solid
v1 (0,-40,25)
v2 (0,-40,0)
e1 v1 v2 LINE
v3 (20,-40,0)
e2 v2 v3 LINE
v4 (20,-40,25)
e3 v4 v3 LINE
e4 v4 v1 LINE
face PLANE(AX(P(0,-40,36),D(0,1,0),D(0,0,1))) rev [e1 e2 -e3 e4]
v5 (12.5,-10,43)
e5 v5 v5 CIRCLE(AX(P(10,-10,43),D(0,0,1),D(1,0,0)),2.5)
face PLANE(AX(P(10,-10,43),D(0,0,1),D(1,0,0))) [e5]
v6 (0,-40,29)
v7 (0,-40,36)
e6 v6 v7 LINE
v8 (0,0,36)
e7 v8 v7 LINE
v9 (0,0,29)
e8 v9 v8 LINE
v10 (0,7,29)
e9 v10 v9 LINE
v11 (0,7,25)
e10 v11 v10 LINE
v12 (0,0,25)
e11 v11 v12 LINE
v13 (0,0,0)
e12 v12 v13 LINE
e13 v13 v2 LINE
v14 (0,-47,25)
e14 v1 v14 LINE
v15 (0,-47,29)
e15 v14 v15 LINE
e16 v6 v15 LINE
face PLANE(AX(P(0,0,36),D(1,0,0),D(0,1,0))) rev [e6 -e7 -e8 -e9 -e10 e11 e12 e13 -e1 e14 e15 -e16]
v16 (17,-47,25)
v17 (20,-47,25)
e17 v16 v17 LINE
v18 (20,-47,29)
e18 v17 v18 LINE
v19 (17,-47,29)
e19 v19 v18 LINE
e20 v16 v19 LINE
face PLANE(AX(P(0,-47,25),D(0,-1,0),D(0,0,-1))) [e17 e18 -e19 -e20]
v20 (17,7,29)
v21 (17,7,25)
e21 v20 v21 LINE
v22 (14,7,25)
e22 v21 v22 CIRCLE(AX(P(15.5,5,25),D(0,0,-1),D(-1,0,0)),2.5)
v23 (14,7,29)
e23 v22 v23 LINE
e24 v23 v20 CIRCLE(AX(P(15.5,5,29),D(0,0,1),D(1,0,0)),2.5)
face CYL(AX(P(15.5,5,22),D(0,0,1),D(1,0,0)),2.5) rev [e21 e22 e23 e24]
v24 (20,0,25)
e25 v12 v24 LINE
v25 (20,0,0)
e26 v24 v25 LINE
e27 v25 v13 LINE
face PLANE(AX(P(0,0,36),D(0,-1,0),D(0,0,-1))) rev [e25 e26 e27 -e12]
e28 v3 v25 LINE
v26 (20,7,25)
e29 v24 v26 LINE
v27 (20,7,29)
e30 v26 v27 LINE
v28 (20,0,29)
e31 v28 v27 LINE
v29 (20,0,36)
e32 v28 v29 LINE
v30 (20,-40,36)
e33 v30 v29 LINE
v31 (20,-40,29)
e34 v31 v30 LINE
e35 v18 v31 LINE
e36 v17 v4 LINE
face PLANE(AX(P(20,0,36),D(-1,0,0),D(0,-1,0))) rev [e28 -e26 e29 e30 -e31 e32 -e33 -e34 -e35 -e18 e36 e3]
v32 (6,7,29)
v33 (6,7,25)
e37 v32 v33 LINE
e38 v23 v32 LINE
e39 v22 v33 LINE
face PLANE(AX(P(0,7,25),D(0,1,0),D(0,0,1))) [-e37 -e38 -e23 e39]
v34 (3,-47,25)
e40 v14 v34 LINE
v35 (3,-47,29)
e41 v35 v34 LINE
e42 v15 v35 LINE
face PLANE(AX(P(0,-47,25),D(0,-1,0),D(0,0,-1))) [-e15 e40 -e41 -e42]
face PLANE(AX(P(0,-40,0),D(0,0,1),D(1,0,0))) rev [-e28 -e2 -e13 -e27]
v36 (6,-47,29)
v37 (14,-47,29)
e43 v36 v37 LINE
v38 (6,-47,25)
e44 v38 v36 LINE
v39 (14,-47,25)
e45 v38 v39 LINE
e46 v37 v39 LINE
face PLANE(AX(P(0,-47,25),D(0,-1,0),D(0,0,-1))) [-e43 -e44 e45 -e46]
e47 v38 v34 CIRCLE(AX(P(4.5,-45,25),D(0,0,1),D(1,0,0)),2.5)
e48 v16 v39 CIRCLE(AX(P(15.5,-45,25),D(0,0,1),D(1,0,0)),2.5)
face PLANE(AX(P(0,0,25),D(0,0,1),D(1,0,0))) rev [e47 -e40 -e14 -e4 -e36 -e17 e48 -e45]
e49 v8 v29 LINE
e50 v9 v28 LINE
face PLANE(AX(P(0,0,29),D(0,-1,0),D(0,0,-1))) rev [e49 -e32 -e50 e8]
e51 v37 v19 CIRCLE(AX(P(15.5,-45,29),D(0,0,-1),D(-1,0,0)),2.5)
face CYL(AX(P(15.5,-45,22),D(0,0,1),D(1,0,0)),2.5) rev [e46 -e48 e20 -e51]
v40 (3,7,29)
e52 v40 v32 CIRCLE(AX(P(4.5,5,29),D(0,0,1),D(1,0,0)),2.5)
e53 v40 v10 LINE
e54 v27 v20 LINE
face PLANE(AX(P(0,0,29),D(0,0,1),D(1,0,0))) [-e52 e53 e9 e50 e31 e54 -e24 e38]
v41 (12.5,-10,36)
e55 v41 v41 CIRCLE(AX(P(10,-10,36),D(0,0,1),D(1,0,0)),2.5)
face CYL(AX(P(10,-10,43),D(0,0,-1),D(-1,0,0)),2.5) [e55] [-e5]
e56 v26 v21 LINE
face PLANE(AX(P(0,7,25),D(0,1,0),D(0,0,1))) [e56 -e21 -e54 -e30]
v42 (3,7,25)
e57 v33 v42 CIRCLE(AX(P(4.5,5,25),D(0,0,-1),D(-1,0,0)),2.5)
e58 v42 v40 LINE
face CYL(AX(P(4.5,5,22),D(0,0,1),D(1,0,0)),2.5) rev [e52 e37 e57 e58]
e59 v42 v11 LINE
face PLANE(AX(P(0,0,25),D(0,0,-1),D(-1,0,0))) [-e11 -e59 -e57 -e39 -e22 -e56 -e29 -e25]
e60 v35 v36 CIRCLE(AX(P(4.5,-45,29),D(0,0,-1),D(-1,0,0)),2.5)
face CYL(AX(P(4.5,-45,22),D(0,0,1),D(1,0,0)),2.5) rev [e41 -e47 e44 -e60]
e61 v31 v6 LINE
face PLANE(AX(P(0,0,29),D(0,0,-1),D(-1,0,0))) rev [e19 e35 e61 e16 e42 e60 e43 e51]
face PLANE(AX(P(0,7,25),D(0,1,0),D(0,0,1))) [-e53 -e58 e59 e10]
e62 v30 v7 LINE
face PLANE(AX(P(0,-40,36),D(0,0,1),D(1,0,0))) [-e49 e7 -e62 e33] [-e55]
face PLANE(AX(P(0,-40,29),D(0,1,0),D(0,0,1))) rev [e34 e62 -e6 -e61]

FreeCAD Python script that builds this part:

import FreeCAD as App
import Part
import Sketcher


def add_polygon(sketch, points):
    """Adds a closed chain of lines whose ends are joined by coincident constraints."""
    first, n = sketch.GeometryCount, len(points)
    for a, b in zip(points, points[1:] + points[:1]):
        sketch.addGeometry(Part.LineSegment(App.Vector(*a, 0), App.Vector(*b, 0)), False)
    for i in range(n):
        sketch.addConstraint(Sketcher.Constraint("Coincident", first + i, 2, first + (i + 1) % n, 1))

doc = App.newDocument("Part")
body = doc.addObject("PartDesign::Body", "Body")

sketch1 = body.newObject("Sketcher::SketchObject", "Sketch")
sketch1.AttachmentSupport = (doc.getObject("XY_Plane"), [""])
sketch1.MapMode = "FlatFace"
add_polygon(sketch1, [(0, 0), (0, -40), (20, -40), (20, 0)])
sketch1.addConstraint([
    Sketcher.Constraint("Vertical", 0),
    Sketcher.Constraint("Horizontal", 1),
    Sketcher.Constraint("Vertical", 2),
    Sketcher.Constraint("Horizontal", 3),
    Sketcher.Constraint("Coincident", 3, 2, -1, 1),
    Sketcher.Constraint("DistanceX", 1, 1, 1, 2, 20.0),
    Sketcher.Constraint("DistanceY", 0, 2, 0, 1, 40.0),
])
pad1 = body.newObject("PartDesign::Pad", "Pad")
pad1.Profile = sketch1
pad1.Length = 36

sketch2 = body.newObject("Sketcher::SketchObject", "Sketch001")
sketch2.AttachmentSupport = (doc.getObject("XY_Plane"), [""])
sketch2.MapMode = "FlatFace"
sketch2.AttachmentOffset = App.Placement(App.Vector(0, 0, 36), App.Rotation())
add_polygon(sketch2, [(0, 7), (0, 0), (20, 0), (20, 7)])
add_polygon(sketch2, [(0, -40), (0, -47), (20, -47), (20, -40)])
sketch2.addConstraint([
    Sketcher.Constraint("Vertical", 0),
    Sketcher.Constraint("Horizontal", 1),
    Sketcher.Constraint("Vertical", 2),
    Sketcher.Constraint("Horizontal", 3),
    Sketcher.Constraint("Vertical", 4),
    Sketcher.Constraint("Horizontal", 5),
    Sketcher.Constraint("Vertical", 6),
    Sketcher.Constraint("Horizontal", 7),
    Sketcher.Constraint("Coincident", 0, 2, -1, 1),
    Sketcher.Constraint("PointOnObject", 4, 2, -2),
    Sketcher.Constraint("Vertical", 2, 2, 5, 2),
    Sketcher.Constraint("Equal", 2, 4),
    Sketcher.Constraint("DistanceX", 1, 1, 1, 2, 20.0),
    Sketcher.Constraint("DistanceY", 0, 2, 0, 1, 7.0),
    Sketcher.Constraint("DistanceY", 4, 2, -1, 1, 47.0),
])
pad2 = body.newObject("PartDesign::Pad", "Pad001")
pad2.Profile = sketch2
pad2.Length = 11
pad2.Reversed = True

sketch3 = body.newObject("Sketcher::SketchObject", "Sketch002")
sketch3.AttachmentSupport = (doc.getObject("XY_Plane"), [""])
sketch3.MapMode = "FlatFace"
sketch3.AttachmentOffset = App.Placement(App.Vector(0, 0, 36), App.Rotation())
add_polygon(sketch3, [(0, -40), (0, -47), (20, -47), (20, -40)])
add_polygon(sketch3, [(0, 7), (0, 0), (20, 0), (20, 7)])
sketch3.addConstraint([
    Sketcher.Constraint("Vertical", 0),
    Sketcher.Constraint("Horizontal", 1),
    Sketcher.Constraint("Vertical", 2),
    Sketcher.Constraint("Horizontal", 3),
    Sketcher.Constraint("Vertical", 4),
    Sketcher.Constraint("Horizontal", 5),
    Sketcher.Constraint("Vertical", 6),
    Sketcher.Constraint("Horizontal", 7),
    Sketcher.Constraint("Coincident", 4, 2, -1, 1),
    Sketcher.Constraint("PointOnObject", 0, 2, -2),
    Sketcher.Constraint("Vertical", 2, 2, 5, 2),
    Sketcher.Constraint("Equal", 2, 4),
    Sketcher.Constraint("DistanceX", 1, 1, 1, 2, 20.0),
    Sketcher.Constraint("DistanceY", 0, 2, 0, 1, 7.0),
    Sketcher.Constraint("DistanceY", 0, 2, -1, 1, 47.0),
])
pocket1 = body.newObject("PartDesign::Pocket", "Pocket")
pocket1.Profile = sketch3
pocket1.Length = 7

sketch4 = body.newObject("Sketcher::SketchObject", "Sketch003")
sketch4.AttachmentSupport = (doc.getObject("XY_Plane"), [""])
sketch4.MapMode = "FlatFace"
sketch4.AttachmentOffset = App.Placement(App.Vector(0, 0, 36), App.Rotation())
sketch4.addGeometry(Part.Circle(App.Vector(10, -10, 0), App.Vector(0, 0, 1), 2.5), False)
sketch4.addConstraint([
    Sketcher.Constraint("Diameter", 0, 5.0),
    Sketcher.Constraint("DistanceX", -1, 1, 0, 3, 10.0),
    Sketcher.Constraint("DistanceY", 0, 3, -1, 1, 10.0),
])
pad3 = body.newObject("PartDesign::Pad", "Pad002")
pad3.Profile = sketch4
pad3.Length = 7

sketch5 = body.newObject("Sketcher::SketchObject", "Sketch004")
sketch5.AttachmentSupport = (doc.getObject("XY_Plane"), [""])
sketch5.MapMode = "FlatFace"
sketch5.AttachmentOffset = App.Placement(App.Vector(0, 0, 29), App.Rotation())
sketch5.addGeometry([
    Part.Circle(App.Vector(4.5, -45, 0), App.Vector(0, 0, 1), 2.5),
    Part.Circle(App.Vector(15.5, -45, 0), App.Vector(0, 0, 1), 2.5),
], False)
sketch5.addConstraint([
    Sketcher.Constraint("Equal", 0, 1),
    Sketcher.Constraint("Horizontal", 0, 3, 1, 3),
    Sketcher.Constraint("Diameter", 0, 5.0),
    Sketcher.Constraint("DistanceY", 0, 3, -1, 1, 45.0),
    Sketcher.Constraint("DistanceX", 0, 3, 1, 3, 11.0),
    Sketcher.Constraint("DistanceX", -1, 1, 0, 3, 4.5),
])
pocket2 = body.newObject("PartDesign::Pocket", "Pocket001")
pocket2.Profile = sketch5
pocket2.Length = 7

sketch6 = body.newObject("Sketcher::SketchObject", "Sketch005")
sketch6.AttachmentSupport = (doc.getObject("XY_Plane"), [""])
sketch6.MapMode = "FlatFace"
sketch6.AttachmentOffset = App.Placement(App.Vector(0, 0, 29), App.Rotation())
sketch6.addGeometry([
    Part.Circle(App.Vector(4.5, 5, 0), App.Vector(0, 0, 1), 2.5),
    Part.Circle(App.Vector(15.5, 5, 0), App.Vector(0, 0, 1), 2.5),
], False)
sketch6.addConstraint([
    Sketcher.Constraint("Equal", 0, 1),
    Sketcher.Constraint("Horizontal", 0, 3, 1, 3),
    Sketcher.Constraint("Diameter", 0, 5.0),
    Sketcher.Constraint("DistanceY", -1, 1, 0, 3, 5.0),
    Sketcher.Constraint("DistanceX", 0, 3, 1, 3, 11.0),
    Sketcher.Constraint("DistanceX", -1, 1, 0, 3, 4.5),
])
pocket3 = body.newObject("PartDesign::Pocket", "Pocket002")
pocket3.Profile = sketch6
pocket3.Length = 7

doc.recompute()
